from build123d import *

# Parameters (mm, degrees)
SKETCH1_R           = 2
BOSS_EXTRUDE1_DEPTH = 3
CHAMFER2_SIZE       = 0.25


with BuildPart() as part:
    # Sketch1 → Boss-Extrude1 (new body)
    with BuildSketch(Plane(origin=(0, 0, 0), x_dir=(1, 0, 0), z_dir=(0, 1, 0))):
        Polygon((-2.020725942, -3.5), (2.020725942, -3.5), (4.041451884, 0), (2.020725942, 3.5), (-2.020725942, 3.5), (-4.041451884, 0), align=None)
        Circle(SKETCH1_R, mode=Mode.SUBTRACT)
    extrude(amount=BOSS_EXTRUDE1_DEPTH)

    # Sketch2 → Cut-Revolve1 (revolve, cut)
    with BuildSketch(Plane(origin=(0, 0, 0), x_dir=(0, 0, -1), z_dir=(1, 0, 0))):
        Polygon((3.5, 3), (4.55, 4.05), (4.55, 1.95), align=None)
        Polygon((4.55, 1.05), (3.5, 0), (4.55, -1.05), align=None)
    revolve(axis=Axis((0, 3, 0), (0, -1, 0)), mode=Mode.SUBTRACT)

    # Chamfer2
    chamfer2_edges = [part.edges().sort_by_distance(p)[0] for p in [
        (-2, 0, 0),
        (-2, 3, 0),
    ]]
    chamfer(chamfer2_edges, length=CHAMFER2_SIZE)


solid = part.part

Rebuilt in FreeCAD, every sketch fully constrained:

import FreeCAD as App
import Part
import Sketcher

V = App.Vector
Q = App.Units.Quantity


def edges_at(feature, points):
    """Names of the edges that pass closest to the given points."""
    edges = feature.Shape.Edges
    near = lambda p: min(range(len(edges)), key=lambda i: edges[i].distToShape(Part.Vertex(*p))[0])
    return sorted({f"Edge{near(p) + 1}" for p in points})

doc = App.newDocument("Part")
body = doc.addObject("PartDesign::Body", "Body")

sketch1 = body.newObject("Sketcher::SketchObject", "Sketch")
sketch1.AttachmentSupport = (doc.getObject("XZ_Plane"), [""])
sketch1.MapMode = "FlatFace"
sketch1.addGeometry(Part.LineSegment(V(-2, 3.5, 0), V(2, 3.5, 0)), False)
sketch1.addGeometry(Part.LineSegment(V(2, 3.5, 0), V(4, 0, 0)), False)
sketch1.addGeometry(Part.LineSegment(V(4, 0, 0), V(2, -3.5, 0)), False)
sketch1.addGeometry(Part.LineSegment(V(2, -3.5, 0), V(-2, -3.5, 0)), False)
sketch1.addGeometry(Part.LineSegment(V(-2, -3.5, 0), V(-4, 0, 0)), False)
sketch1.addGeometry(Part.LineSegment(V(-4, 0, 0), V(-2, 3.5, 0)), False)
sketch1.addGeometry(Part.Circle(V(0, 0, 0), V(0, 0, 1), 2), False)
sketch1.addConstraint(Sketcher.Constraint("Coincident", 0, 2, 1, 1))
sketch1.addConstraint(Sketcher.Constraint("Coincident", 1, 2, 2, 1))
sketch1.addConstraint(Sketcher.Constraint("Coincident", 2, 2, 3, 1))
sketch1.addConstraint(Sketcher.Constraint("Coincident", 3, 2, 4, 1))
sketch1.addConstraint(Sketcher.Constraint("Coincident", 4, 2, 5, 1))
sketch1.addConstraint(Sketcher.Constraint("Coincident", 5, 2, 0, 1))
sketch1.addConstraint(Sketcher.Constraint("Horizontal", 0))
sketch1.addConstraint(Sketcher.Constraint("Horizontal", 3))
sketch1.addConstraint(Sketcher.Constraint("Coincident", 6, 3, -1, 1))
sketch1.addConstraint(Sketcher.Constraint("Symmetric", 0, 2, 3, 2, -1, 1))
sketch1.addConstraint(Sketcher.Constraint("Symmetric", 1, 2, 4, 2, -1, 1))
sketch1.addConstraint(Sketcher.Constraint("PointOnObject", 1, 2, -1))
sketch1.addConstraint(Sketcher.Constraint("Parallel", 2, 5))
sketch1.addConstraint(Sketcher.Constraint("Vertical", 0, 2, 2, 2))
sketch1.addConstraint(Sketcher.Constraint("Diameter", 6, Q("4 mm")))
sketch1.addConstraint(Sketcher.Constraint("Angle", 1, Q("-60 deg")))
sketch1.addConstraint(Sketcher.Constraint("DistanceY", 2, 2, 0, 2, Q("7 mm")))
sketch1.addConstraint(Sketcher.Constraint("DistanceX", 0, 1, 0, 2, Q("4.041452 mm")))
pad1 = body.newObject("PartDesign::Pad", "Pad")
pad1.Profile = sketch1
pad1.Length = 3
pad1.Reversed = True

sketch2 = body.newObject("Sketcher::SketchObject", "Sketch001")
sketch2.AttachmentSupport = (doc.getObject("YZ_Plane"), [""])
sketch2.MapMode = "FlatFace"
sketch2.addGeometry(Part.LineSegment(V(4, -4.5, 0), V(3, -3.5, 0)), False)
sketch2.addGeometry(Part.LineSegment(V(3, -3.5, 0), V(1.9, -4.5, 0)), False)
sketch2.addGeometry(Part.LineSegment(V(1.9, -4.5, 0), V(4, -4.5, 0)), False)
sketch2.addGeometry(Part.LineSegment(V(1.1, -4.5, 0), V(0, -3.5, 0)), False)
sketch2.addGeometry(Part.LineSegment(V(0, -3.5, 0), V(-1.1, -4.5, 0)), False)
sketch2.addGeometry(Part.LineSegment(V(-1.1, -4.5, 0), V(1.1, -4.5, 0)), False)
sketch2.addConstraint(Sketcher.Constraint("Coincident", 0, 2, 1, 1))
sketch2.addConstraint(Sketcher.Constraint("Coincident", 1, 2, 2, 1))
sketch2.addConstraint(Sketcher.Constraint("Coincident", 2, 2, 0, 1))
sketch2.addConstraint(Sketcher.Constraint("Coincident", 3, 2, 4, 1))
sketch2.addConstraint(Sketcher.Constraint("Coincident", 4, 2, 5, 1))
sketch2.addConstraint(Sketcher.Constraint("Coincident", 5, 2, 3, 1))
sketch2.addConstraint(Sketcher.Constraint("Horizontal", 2))
sketch2.addConstraint(Sketcher.Constraint("Horizontal", 5))
sketch2.addConstraint(Sketcher.Constraint("PointOnObject", 3, 2, -2))
sketch2.addConstraint(Sketcher.Constraint("Perpendicular", 0, 1))
sketch2.addConstraint(Sketcher.Constraint("Perpendicular", 1, 3))
sketch2.addConstraint(Sketcher.Constraint("Perpendicular", 3, 4))
sketch2.addConstraint(Sketcher.Constraint("Horizontal", 0, 2, 3, 2))
sketch2.addConstraint(Sketcher.Constraint("Horizontal", 2, 2, 4, 2))
sketch2.addConstraint(Sketcher.Constraint("Equal", 0, 1))
sketch2.addConstraint(Sketcher.Constraint("DistanceX", 2, 1, 2, 2, Q("2.1 mm")))
sketch2.addConstraint(Sketcher.Constraint("DistanceX", -1, 1, 0, 2, Q("3 mm")))
sketch2.addConstraint(Sketcher.Constraint("DistanceY", 0, 2, -1, 1, Q("3.5 mm")))
groove = body.newObject("PartDesign::Groove", "Groove")
groove.Profile = sketch2
groove.ReferenceAxis = (sketch2, ["H_Axis"])
groove.Angle = 360
doc.recompute()

chamfer = body.newObject("PartDesign::Chamfer", "Chamfer")
chamfer.Base = (groove, edges_at(groove, [(-2, 0, 0), (-2, 3, 0)]))
chamfer.Size = 0.25

doc.recompute()
